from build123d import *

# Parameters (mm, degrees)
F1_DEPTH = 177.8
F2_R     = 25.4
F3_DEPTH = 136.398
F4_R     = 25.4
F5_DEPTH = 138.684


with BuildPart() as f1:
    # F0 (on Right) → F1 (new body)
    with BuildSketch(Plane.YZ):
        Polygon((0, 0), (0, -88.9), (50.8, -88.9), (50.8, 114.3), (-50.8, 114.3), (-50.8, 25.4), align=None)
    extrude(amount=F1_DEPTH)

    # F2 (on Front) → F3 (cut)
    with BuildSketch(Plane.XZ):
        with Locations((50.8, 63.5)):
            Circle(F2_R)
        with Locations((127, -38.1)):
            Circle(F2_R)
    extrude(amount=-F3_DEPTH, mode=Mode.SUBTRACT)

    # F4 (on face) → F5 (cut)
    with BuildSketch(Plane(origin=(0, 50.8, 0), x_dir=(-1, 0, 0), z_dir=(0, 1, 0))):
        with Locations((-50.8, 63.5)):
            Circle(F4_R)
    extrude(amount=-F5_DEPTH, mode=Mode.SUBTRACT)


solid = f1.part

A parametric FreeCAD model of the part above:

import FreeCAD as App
import Part
import Sketcher

V = App.Vector
Q = App.Units.Quantity

doc = App.newDocument("Part")
body = doc.addObject("PartDesign::Body", "Body")

# Sketch on YZ plane
sketch1 = body.newObject("Sketcher::SketchObject", "Sketch")
sketch1.AttachmentSupport = (doc.getObject("YZ_Plane"), [""])
sketch1.MapMode = "FlatFace"
sketch1.addGeometry(Part.LineSegment(V(0, 0, 0), V(0, -89, 0)), False)
sketch1.addGeometry(Part.LineSegment(V(0, -89, 0), V(51, -89, 0)), False)
sketch1.addGeometry(Part.LineSegment(V(51, -89, 0), V(51, 114, 0)), False)
sketch1.addGeometry(Part.LineSegment(V(51, 114, 0), V(-51, 114, 0)), False)
sketch1.addGeometry(Part.LineSegment(V(-51, 114, 0), V(-51, 25, 0)), False)
sketch1.addGeometry(Part.LineSegment(V(-51, 25, 0), V(0, 0, 0)), False)
sketch1.addConstraint(Sketcher.Constraint("Coincident", 0, 2, 1, 1))
sketch1.addConstraint(Sketcher.Constraint("Coincident", 1, 2, 2, 1))
sketch1.addConstraint(Sketcher.Constraint("Coincident", 2, 2, 3, 1))
sketch1.addConstraint(Sketcher.Constraint("Coincident", 3, 2, 4, 1))
sketch1.addConstraint(Sketcher.Constraint("Coincident", 4, 2, 5, 1))
sketch1.addConstraint(Sketcher.Constraint("Coincident", 5, 2, 0, 1))
sketch1.addConstraint(Sketcher.Constraint("Vertical", 0))
sketch1.addConstraint(Sketcher.Constraint("Horizontal", 1))
sketch1.addConstraint(Sketcher.Constraint("Vertical", 2))
sketch1.addConstraint(Sketcher.Constraint("Horizontal", 3))
sketch1.addConstraint(Sketcher.Constraint("Vertical", 4))
sketch1.addConstraint(Sketcher.Constraint("Coincident", 5, 2, -1, 1))
sketch1.addConstraint(Sketcher.Constraint("Equal", 0, 4))
sketch1.addConstraint(Sketcher.Constraint("DistanceX", 1, 1, 1, 2, Q("2 in")))
sketch1.addConstraint(Sketcher.Constraint("DistanceX", 3, 2, 3, 1, Q("4 in")))
sketch1.addConstraint(Sketcher.Constraint("DistanceY", 2, 1, 2, 2, Q("8 in")))
sketch1.addConstraint(Sketcher.Constraint("DistanceY", 0, 2, 0, 1, Q("3.5 in")))
pad1 = body.newObject("PartDesign::Pad", "Pad")
pad1.Profile = sketch1
pad1.Length = Q("7 in")

# Sketch on XZ plane
sketch2 = body.newObject("Sketcher::SketchObject", "Sketch001")
sketch2.AttachmentSupport = (doc.getObject("XZ_Plane"), [""])
sketch2.MapMode = "FlatFace"
sketch2.addGeometry(Part.Circle(V(51, 64, 0), V(0, 0, 1), 25), False)
sketch2.addGeometry(Part.Circle(V(127, -38, 0), V(0, 0, 1), 25), False)
sketch2.addConstraint(Sketcher.Constraint("Equal", 0, 1))
sketch2.addConstraint(Sketcher.Constraint("Diameter", 0, Q("2 in")))
sketch2.addConstraint(Sketcher.Constraint("DistanceX", -1, 1, 0, 3, Q("2 in")))
sketch2.addConstraint(Sketcher.Constraint("DistanceX", -1, 1, 1, 3, Q("5 in")))
sketch2.addConstraint(Sketcher.Constraint("DistanceY", 1, 3, 0, 3, Q("4 in")))
sketch2.addConstraint(Sketcher.Constraint("DistanceY", -1, 1, 0, 3, Q("2.5 in")))
pocket1 = body.newObject("PartDesign::Pocket", "Pocket")
pocket1.Profile = sketch2
pocket1.Length = Q("5.37 in")

# Sketch on XZ plane
sketch3 = body.newObject("Sketcher::SketchObject", "Sketch002")
sketch3.AttachmentSupport = (doc.getObject("XZ_Plane"), [""])
sketch3.MapMode = "FlatFace"
sketch3.AttachmentOffset = App.Placement(V(0, 0, -2 * 25.4), App.Rotation())
sketch3.addGeometry(Part.Circle(V(51, 64, 0), V(0, 0, 1), 25), False)
sketch3.addConstraint(Sketcher.Constraint("Diameter", 0, Q("2 in")))
sketch3.addConstraint(Sketcher.Constraint("DistanceX", -1, 1, 0, 3, Q("2 in")))
sketch3.addConstraint(Sketcher.Constraint("DistanceY", -1, 1, 0, 3, Q("2.5 in")))
pocket2 = body.newObject("PartDesign::Pocket", "Pocket001")
pocket2.Profile = sketch3
pocket2.Length = Q("5.46 in")
pocket2.Reversed = True

doc.recompute()
